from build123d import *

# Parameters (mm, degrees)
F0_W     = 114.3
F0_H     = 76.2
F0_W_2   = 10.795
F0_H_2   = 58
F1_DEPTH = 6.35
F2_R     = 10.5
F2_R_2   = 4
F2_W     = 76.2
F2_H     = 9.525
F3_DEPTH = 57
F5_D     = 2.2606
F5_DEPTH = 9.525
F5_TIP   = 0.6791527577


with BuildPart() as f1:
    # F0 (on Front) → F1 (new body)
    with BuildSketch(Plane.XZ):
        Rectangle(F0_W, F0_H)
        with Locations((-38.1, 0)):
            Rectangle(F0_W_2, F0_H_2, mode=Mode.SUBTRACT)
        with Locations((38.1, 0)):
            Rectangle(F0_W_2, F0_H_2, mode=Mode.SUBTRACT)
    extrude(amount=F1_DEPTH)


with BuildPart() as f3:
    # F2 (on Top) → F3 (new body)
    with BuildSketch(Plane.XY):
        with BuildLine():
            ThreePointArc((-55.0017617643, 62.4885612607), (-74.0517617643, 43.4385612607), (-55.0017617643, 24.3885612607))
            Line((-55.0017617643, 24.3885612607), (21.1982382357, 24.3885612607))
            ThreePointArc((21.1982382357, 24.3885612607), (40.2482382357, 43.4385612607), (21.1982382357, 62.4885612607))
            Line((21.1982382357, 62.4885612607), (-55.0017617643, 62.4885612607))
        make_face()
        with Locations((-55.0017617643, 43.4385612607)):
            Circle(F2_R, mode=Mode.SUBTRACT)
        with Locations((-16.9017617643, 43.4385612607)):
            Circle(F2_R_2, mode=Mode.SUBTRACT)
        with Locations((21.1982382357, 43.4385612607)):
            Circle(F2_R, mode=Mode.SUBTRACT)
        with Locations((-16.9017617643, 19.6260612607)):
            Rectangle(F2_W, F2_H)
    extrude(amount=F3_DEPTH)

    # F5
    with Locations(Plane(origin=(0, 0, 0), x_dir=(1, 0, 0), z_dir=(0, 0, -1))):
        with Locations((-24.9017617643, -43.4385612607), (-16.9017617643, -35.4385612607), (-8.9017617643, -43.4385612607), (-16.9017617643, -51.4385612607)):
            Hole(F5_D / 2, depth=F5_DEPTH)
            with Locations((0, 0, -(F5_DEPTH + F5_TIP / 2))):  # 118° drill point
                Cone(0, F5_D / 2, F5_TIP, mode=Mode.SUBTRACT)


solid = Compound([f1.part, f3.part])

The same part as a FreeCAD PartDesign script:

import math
import FreeCAD as App
import Part
import Sketcher
Q = App.Units.Quantity


def add_polygon(sketch, points):
    """Adds a closed chain of lines whose ends are joined by coincident constraints."""
    first, n = sketch.GeometryCount, len(points)
    for a, b in zip(points, points[1:] + points[:1]):
        sketch.addGeometry(Part.LineSegment(App.Vector(*a, 0), App.Vector(*b, 0)), False)
    for i in range(n):
        sketch.addConstraint(Sketcher.Constraint("Coincident", first + i, 2, first + (i + 1) % n, 1))

doc = App.newDocument("Part")
body = doc.addObject("PartDesign::Body", "Body")

# Sketch on XZ plane
sketch1 = doc.addObject("Sketcher::SketchObject", "Sketch")
body.addObject(sketch1)
sketch1.AttachmentSupport = (doc.XZ_Plane, [""])
sketch1.MapMode = "FlatFace"
add_polygon(sketch1, [(-57, 38), (-57, -38), (57, -38), (57, 38)])  # lines 0-3
add_polygon(sketch1, [(-33, -29), (-43, -29), (-43, 29), (-33, 29)])  # lines 4-7
add_polygon(sketch1, [(43, -29), (33, -29), (33, 29), (43, 29)])  # lines 8-11
sketch1.addConstraint([
    Sketcher.Constraint("Vertical", 0),
    Sketcher.Constraint("Horizontal", 1),
    Sketcher.Constraint("Vertical", 2),
    Sketcher.Constraint("Horizontal", 3),
    Sketcher.Constraint("Horizontal", 4),
    Sketcher.Constraint("Vertical", 5),
    Sketcher.Constraint("Horizontal", 6),
    Sketcher.Constraint("Vertical", 7),
    Sketcher.Constraint("Horizontal", 8),
    Sketcher.Constraint("Vertical", 9),
    Sketcher.Constraint("Horizontal", 10),
    Sketcher.Constraint("Vertical", 11),
    Sketcher.Constraint("Symmetric", 0, 2, 2, 2, -1, 1),
    Sketcher.Constraint("Symmetric", 6, 2, 8, 2, -1, 1),
    Sketcher.Constraint("Symmetric", 4, 2, 10, 2, -1, 1),
    Sketcher.Constraint("Horizontal", 7, 2, 8, 2),
    Sketcher.Constraint("DistanceY", 0, 2, 0, 1, Q("3 in")),
    Sketcher.Constraint("DistanceX", 1, 1, 1, 2, Q("4.5 in")),
    Sketcher.Constraint("DistanceX", 4, 2, 8, 2, Q("3 in")),
    Sketcher.Constraint("DistanceX", 4, 2, 4, 1, Q("0.425 in")),
    Sketcher.Constraint("DistanceY", 5, 1, 5, 2, 58.0),
])
pad1 = doc.addObject("PartDesign::Pad", "Pad")
body.addObject(pad1)
pad1.Profile = sketch1
pad1.Length = Q("0.25 in")
body2 = doc.addObject("PartDesign::Body", "Body001")

# Sketch on XY plane
sketch2 = doc.addObject("Sketcher::SketchObject", "Sketch001")
body2.addObject(sketch2)
sketch2.AttachmentSupport = (doc.getObject("XY_Plane001"), [""])
sketch2.MapMode = "FlatFace"
sketch2.addGeometry([
    Part.ArcOfCircle(Part.Circle(App.Vector(-55, 43.4, 0), App.Vector(0, 0, 1), 19.1), math.radians(90), math.radians(270)),  # 0
    Part.LineSegment(App.Vector(-55, 24.4, 0), App.Vector(-55, 14.9, 0)),  # 1
    Part.LineSegment(App.Vector(-55, 14.9, 0), App.Vector(21.2, 14.9, 0)),  # 2
    Part.LineSegment(App.Vector(21.2, 14.9, 0), App.Vector(21.2, 24.4, 0)),  # 3
    Part.ArcOfCircle(Part.Circle(App.Vector(21.2, 43.4, 0), App.Vector(0, 0, 1), 19.1), math.radians(-90), math.radians(90)),  # 4
    Part.LineSegment(App.Vector(21.2, 62.5, 0), App.Vector(-55, 62.5, 0)),  # 5
    Part.Circle(App.Vector(-55, 43.4, 0), App.Vector(0, 0, 1), 10.5),  # 6
    Part.Circle(App.Vector(-16.9, 43.4, 0), App.Vector(0, 0, 1), 4),  # 7
    Part.Circle(App.Vector(21.2, 43.4, 0), App.Vector(0, 0, 1), 10.5),  # 8
], False)
sketch2.addConstraint([
    Sketcher.Constraint("Coincident", 0, 2, 1, 1),
    Sketcher.Constraint("Coincident", 1, 2, 2, 1),
    Sketcher.Constraint("Coincident", 2, 2, 3, 1),
    Sketcher.Constraint("Coincident", 3, 2, 4, 1),
    Sketcher.Constraint("Tangent", 4, 2, 5, 1),
    Sketcher.Constraint("Tangent", 5, 2, 0, 1),
    Sketcher.Constraint("Vertical", 1),
    Sketcher.Constraint("Horizontal", 2),
    Sketcher.Constraint("Vertical", 3),
    Sketcher.Constraint("Horizontal", 5),
    Sketcher.Constraint("Coincident", 6, 3, 0, 3),
    Sketcher.Constraint("Coincident", 8, 3, 4, 3),
    Sketcher.Constraint("Equal", 0, 4),
    Sketcher.Constraint("Equal", 6, 8),
    Sketcher.Constraint("Horizontal", 6, 3, 7, 3),
    Sketcher.Constraint("Vertical", 6, 3, 0, 2),
    Sketcher.Constraint("Vertical", 8, 3, 2, 2),
    Sketcher.Constraint("DistanceX", 2, 1, 2, 2, Q("3 in")),
    Sketcher.Constraint("Radius", 0, Q("0.75 in")),
    Sketcher.Constraint("DistanceX", 0, 3, 7, 3, Q("1.5 in")),
    Sketcher.Constraint("Diameter", 6, 21.0),
    Sketcher.Constraint("Diameter", 7, 8.0),
    Sketcher.Constraint("DistanceY", 1, 2, 1, 1, Q("0.375 in")),
    Sketcher.Constraint("DistanceX", 0, 3, -1, 1, 55.001762),
    Sketcher.Constraint("DistanceY", -1, 1, 0, 3, 43.438561),
])
pad2 = doc.addObject("PartDesign::Pad", "Pad001")
body2.addObject(pad2)
pad2.Profile = sketch2
pad2.Length = 57

# Sketch on XY plane
sketch3 = doc.addObject("Sketcher::SketchObject", "Sketch002")
body2.addObject(sketch3)
sketch3.AttachmentSupport = (doc.getObject("XY_Plane001"), [""])
sketch3.MapMode = "FlatFace"
sketch3.addGeometry([
    Part.Circle(App.Vector(-24.9, 43.4, 0), App.Vector(0, 0, 1), 1.1),
    Part.Circle(App.Vector(-16.9, 35.4, 0), App.Vector(0, 0, 1), 1.1),
    Part.Circle(App.Vector(-8.9, 43.4, 0), App.Vector(0, 0, 1), 1.1),
    Part.Circle(App.Vector(-16.9, 51.4, 0), App.Vector(0, 0, 1), 1.1),
], False)
sketch3.addConstraint([
    Sketcher.Constraint("Equal", 0, 1),
    Sketcher.Constraint("Equal", 1, 2),
    Sketcher.Constraint("Equal", 2, 3),
    Sketcher.Constraint("Horizontal", 0, 3, 2, 3),
    Sketcher.Constraint("Vertical", 1, 3, 3, 3),
    Sketcher.Constraint("Diameter", 0, Q("0.089 in")),
    Sketcher.Constraint("DistanceX", 0, 3, 1, 3, 8.0),
    Sketcher.Constraint("DistanceY", 1, 3, 0, 3, 8.0),
    Sketcher.Constraint("DistanceX", 1, 3, 2, 3, 8.0),
    Sketcher.Constraint("DistanceY", 0, 3, 3, 3, 8.0),
    Sketcher.Constraint("DistanceX", 0, 3, -1, 1, 24.901762),
    Sketcher.Constraint("DistanceY", -1, 1, 0, 3, 43.438561),
])
doc.recompute()
hole = doc.addObject("PartDesign::Hole", "Hole")
body2.addObject(hole)
hole.Profile = sketch3
hole.ThreadType = "None"
hole.Diameter = Q("0.089 in")
hole.DepthType = "Dimension"
hole.Depth = Q("0.375 in")
hole.DrillPoint = "Angled"
hole.DrillPointAngle = 118
hole.Reversed = True

doc.recompute()
